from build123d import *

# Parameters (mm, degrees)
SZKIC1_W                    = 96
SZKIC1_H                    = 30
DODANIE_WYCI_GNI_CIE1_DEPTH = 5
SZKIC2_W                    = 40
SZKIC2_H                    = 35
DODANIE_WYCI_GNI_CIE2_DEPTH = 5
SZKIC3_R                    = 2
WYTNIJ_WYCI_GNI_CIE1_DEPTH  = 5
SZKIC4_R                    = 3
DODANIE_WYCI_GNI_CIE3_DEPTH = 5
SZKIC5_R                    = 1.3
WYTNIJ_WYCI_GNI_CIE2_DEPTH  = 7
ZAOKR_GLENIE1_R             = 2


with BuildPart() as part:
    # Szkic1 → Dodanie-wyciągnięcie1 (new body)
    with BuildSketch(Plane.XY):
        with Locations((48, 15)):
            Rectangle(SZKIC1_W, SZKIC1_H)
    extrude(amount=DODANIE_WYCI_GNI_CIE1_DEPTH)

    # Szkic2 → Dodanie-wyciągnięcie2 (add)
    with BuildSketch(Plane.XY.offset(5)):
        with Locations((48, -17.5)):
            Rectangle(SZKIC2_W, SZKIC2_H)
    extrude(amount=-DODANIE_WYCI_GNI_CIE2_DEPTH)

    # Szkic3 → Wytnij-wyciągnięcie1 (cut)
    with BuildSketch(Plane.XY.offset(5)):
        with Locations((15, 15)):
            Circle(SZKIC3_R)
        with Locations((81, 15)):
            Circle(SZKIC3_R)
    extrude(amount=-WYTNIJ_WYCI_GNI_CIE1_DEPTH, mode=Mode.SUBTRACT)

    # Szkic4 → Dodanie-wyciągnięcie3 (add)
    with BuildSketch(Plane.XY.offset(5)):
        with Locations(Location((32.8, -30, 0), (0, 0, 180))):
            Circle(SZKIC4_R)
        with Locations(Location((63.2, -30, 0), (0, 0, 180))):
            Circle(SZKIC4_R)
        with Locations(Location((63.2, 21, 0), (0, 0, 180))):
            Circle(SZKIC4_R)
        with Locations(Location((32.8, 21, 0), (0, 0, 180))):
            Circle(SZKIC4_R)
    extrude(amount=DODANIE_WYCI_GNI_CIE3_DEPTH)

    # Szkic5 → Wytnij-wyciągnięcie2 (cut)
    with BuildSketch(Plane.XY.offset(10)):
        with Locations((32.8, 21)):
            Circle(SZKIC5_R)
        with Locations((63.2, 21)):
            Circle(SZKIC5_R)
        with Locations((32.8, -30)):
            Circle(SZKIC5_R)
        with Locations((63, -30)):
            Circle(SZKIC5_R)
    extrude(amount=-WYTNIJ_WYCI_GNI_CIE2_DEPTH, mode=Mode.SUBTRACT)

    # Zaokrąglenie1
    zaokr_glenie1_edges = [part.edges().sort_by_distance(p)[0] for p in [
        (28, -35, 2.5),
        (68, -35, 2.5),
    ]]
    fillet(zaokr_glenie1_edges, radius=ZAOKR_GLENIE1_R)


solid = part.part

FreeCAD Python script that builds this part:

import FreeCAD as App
import Part
import Sketcher
Q = App.Units.Quantity


def edges_at(feature, points):
    """Names of the edges that pass closest to the given points."""
    edges = feature.Shape.Edges
    near = lambda p: min(range(len(edges)), key=lambda i: edges[i].distToShape(Part.Vertex(*p))[0])
    return sorted({f"Edge{near(p) + 1}" for p in points})


def add_polygon(sketch, points):
    """Adds a closed chain of lines whose ends are joined by coincident constraints."""
    first, n = sketch.GeometryCount, len(points)
    for a, b in zip(points, points[1:] + points[:1]):
        sketch.addGeometry(Part.LineSegment(App.Vector(*a, 0), App.Vector(*b, 0)), False)
    for i in range(n):
        sketch.addConstraint(Sketcher.Constraint("Coincident", first + i, 2, first + (i + 1) % n, 1))

doc = App.newDocument("Part")
params = doc.addObject("Spreadsheet::Sheet", "Params")
for row, (alias, value) in enumerate([
    ("sketch1_width", "96 mm"),
    ("sketch1_height", "30 mm"),
    ("pad1_length", "5 mm"),
    ("sketch2_width", "40 mm"),
    ("sketch2_height", "35 mm"),
    ("pad2_length", "5 mm"),
    ("sketch3_diameter", "4 mm"),
    ("pocket1_length", "5 mm"),
    ("sketch4_diameter", "6 mm"),
    ("pad3_length", "5 mm"),
    ("sketch5_diameter", "2.6 mm"),
    ("pocket2_length", "7 mm"),
    ("fillet_radius", "2 mm"),
], start=1):
    params.set(f"A{row}", alias)
    params.set(f"B{row}", "=" + value)
    params.setAlias(f"B{row}", alias)

body = doc.addObject("PartDesign::Body", "Body")

sketch1 = body.newObject("Sketcher::SketchObject", "Sketch")
sketch1.AttachmentSupport = (doc.getObject("XY_Plane"), [""])
sketch1.MapMode = "FlatFace"
add_polygon(sketch1, [(0, 30), (0, 0), (96, 0), (96, 30)])
sketch1.addConstraint(Sketcher.Constraint("Vertical", 0))
sketch1.addConstraint(Sketcher.Constraint("Horizontal", 1))
sketch1.addConstraint(Sketcher.Constraint("Vertical", 2))
sketch1.addConstraint(Sketcher.Constraint("Horizontal", 3))
sketch1.addConstraint(Sketcher.Constraint("Coincident", 0, 2, -1, 1))
sketch1.addConstraint(Sketcher.Constraint("DistanceX", 1, 1, 1, 2, Q("96 mm")))
sketch1.addConstraint(Sketcher.Constraint("DistanceY", 0, 2, 0, 1, Q("30 mm")))
sketch1.setExpression("Constraints[9]", "Params.sketch1_width")
sketch1.setExpression("Constraints[10]", "Params.sketch1_height")
pad1 = body.newObject("PartDesign::Pad", "Pad")
pad1.Profile = sketch1
pad1.setExpression("Length", "Params.pad1_length")

sketch2 = body.newObject("Sketcher::SketchObject", "Sketch001")
sketch2.AttachmentSupport = (doc.getObject("XY_Plane"), [""])
sketch2.MapMode = "FlatFace"
sketch2.AttachmentOffset = App.Placement(App.Vector(0, 0, 5), App.Rotation())
add_polygon(sketch2, [(28, 0), (28, -35), (68, -35), (68, 0)])
sketch2.addConstraint(Sketcher.Constraint("Vertical", 0))
sketch2.addConstraint(Sketcher.Constraint("Horizontal", 1))
sketch2.addConstraint(Sketcher.Constraint("Vertical", 2))
sketch2.addConstraint(Sketcher.Constraint("Horizontal", 3))
sketch2.addConstraint(Sketcher.Constraint("PointOnObject", 2, 2, -1))
sketch2.addConstraint(Sketcher.Constraint("DistanceX", 1, 1, 1, 2, Q("40 mm")))
sketch2.addConstraint(Sketcher.Constraint("DistanceY", 0, 2, 0, 1, Q("35 mm")))
sketch2.addConstraint(Sketcher.Constraint("DistanceX", -1, 1, 0, 2, Q("28 mm")))
sketch2.setExpression("Constraints[9]", "Params.sketch2_width")
sketch2.setExpression("Constraints[10]", "Params.sketch2_height")
pad2 = body.newObject("PartDesign::Pad", "Pad001")
pad2.Profile = sketch2
pad2.setExpression("Length", "Params.pad2_length")
pad2.Reversed = True

sketch3 = body.newObject("Sketcher::SketchObject", "Sketch002")
sketch3.AttachmentSupport = (doc.getObject("XY_Plane"), [""])
sketch3.MapMode = "FlatFace"
sketch3.AttachmentOffset = App.Placement(App.Vector(0, 0, 5), App.Rotation())
sketch3.addGeometry(Part.Circle(App.Vector(15, 15, 0), App.Vector(0, 0, 1), 2), False)
sketch3.addGeometry(Part.Circle(App.Vector(81, 15, 0), App.Vector(0, 0, 1), 2), False)
sketch3.addConstraint(Sketcher.Constraint("Equal", 0, 1))
sketch3.addConstraint(Sketcher.Constraint("Horizontal", 0, 3, 1, 3))
sketch3.addConstraint(Sketcher.Constraint("Diameter", 0, Q("4 mm")))
sketch3.addConstraint(Sketcher.Constraint("DistanceX", -1, 1, 0, 3, Q("15 mm")))
sketch3.addConstraint(Sketcher.Constraint("DistanceY", -1, 1, 0, 3, Q("15 mm")))
sketch3.addConstraint(Sketcher.Constraint("DistanceX", -1, 1, 1, 3, Q("81 mm")))
sketch3.setExpression("Constraints[2]", "Params.sketch3_diameter")
pocket1 = body.newObject("PartDesign::Pocket", "Pocket")
pocket1.Profile = sketch3
pocket1.setExpression("Length", "Params.pocket1_length")

sketch4 = body.newObject("Sketcher::SketchObject", "Sketch003")
sketch4.AttachmentSupport = (doc.getObject("XY_Plane"), [""])
sketch4.MapMode = "FlatFace"
sketch4.AttachmentOffset = App.Placement(App.Vector(0, 0, 5), App.Rotation())
sketch4.addGeometry(Part.Circle(App.Vector(32.8, -30, 0), App.Vector(0, 0, 1), 3), False)
sketch4.addGeometry(Part.Circle(App.Vector(63.2, -30, 0), App.Vector(0, 0, 1), 3), False)
sketch4.addGeometry(Part.Circle(App.Vector(63.2, 21, 0), App.Vector(0, 0, 1), 3), False)
sketch4.addGeometry(Part.Circle(App.Vector(32.8, 21, 0), App.Vector(0, 0, 1), 3), False)
sketch4.addConstraint(Sketcher.Constraint("Equal", 0, 1))
sketch4.addConstraint(Sketcher.Constraint("Equal", 1, 2))
sketch4.addConstraint(Sketcher.Constraint("Equal", 2, 3))
sketch4.addConstraint(Sketcher.Constraint("Horizontal", 0, 3, 1, 3))
sketch4.addConstraint(Sketcher.Constraint("Horizontal", 2, 3, 3, 3))
sketch4.addConstraint(Sketcher.Constraint("Vertical", 1, 3, 2, 3))
sketch4.addConstraint(Sketcher.Constraint("Vertical", 0, 3, 3, 3))
sketch4.addConstraint(Sketcher.Constraint("Diameter", 0, Q("6 mm")))
sketch4.addConstraint(Sketcher.Constraint("DistanceY", 0, 3, -1, 1, Q("30 mm")))
sketch4.addConstraint(Sketcher.Constraint("DistanceY", -1, 1, 2, 3, Q("21 mm")))
sketch4.addConstraint(Sketcher.Constraint("DistanceX", -1, 1, 0, 3, Q("32.8 mm")))
sketch4.addConstraint(Sketcher.Constraint("DistanceX", -1, 1, 1, 3, Q("63.2 mm")))
sketch4.setExpression("Constraints[7]", "Params.sketch4_diameter")
pad3 = body.newObject("PartDesign::Pad", "Pad002")
pad3.Profile = sketch4
pad3.setExpression("Length", "Params.pad3_length")

sketch5 = body.newObject("Sketcher::SketchObject", "Sketch004")
sketch5.AttachmentSupport = (doc.getObject("XY_Plane"), [""])
sketch5.MapMode = "FlatFace"
sketch5.AttachmentOffset = App.Placement(App.Vector(0, 0, 10), App.Rotation())
sketch5.addGeometry(Part.Circle(App.Vector(32.8, 21, 0), App.Vector(0, 0, 1), 1.3), False)
sketch5.addGeometry(Part.Circle(App.Vector(63.2, 21, 0), App.Vector(0, 0, 1), 1.3), False)
sketch5.addGeometry(Part.Circle(App.Vector(32.8, -30, 0), App.Vector(0, 0, 1), 1.3), False)
sketch5.addGeometry(Part.Circle(App.Vector(63, -30, 0), App.Vector(0, 0, 1), 1.3), False)
sketch5.addConstraint(Sketcher.Constraint("Equal", 0, 1))
sketch5.addConstraint(Sketcher.Constraint("Equal", 1, 2))
sketch5.addConstraint(Sketcher.Constraint("Equal", 2, 3))
sketch5.addConstraint(Sketcher.Constraint("Horizontal", 0, 3, 1, 3))
sketch5.addConstraint(Sketcher.Constraint("Horizontal", 2, 3, 3, 3))
sketch5.addConstraint(Sketcher.Constraint("Vertical", 0, 3, 2, 3))
sketch5.addConstraint(Sketcher.Constraint("Diameter", 0, Q("2.6 mm")))
sketch5.addConstraint(Sketcher.Constraint("DistanceY", -1, 1, 0, 3, Q("21 mm")))
sketch5.addConstraint(Sketcher.Constraint("DistanceY", 2, 3, -1, 1, Q("30 mm")))
sketch5.addConstraint(Sketcher.Constraint("DistanceX", -1, 1, 3, 3, Q("63 mm")))
sketch5.addConstraint(Sketcher.Constraint("DistanceX", -1, 1, 0, 3, Q("32.8 mm")))
sketch5.addConstraint(Sketcher.Constraint("DistanceX", -1, 1, 1, 3, Q("63.2 mm")))
sketch5.setExpression("Constraints[6]", "Params.sketch5_diameter")
pocket2 = body.newObject("PartDesign::Pocket", "Pocket001")
pocket2.Profile = sketch5
pocket2.setExpression("Length", "Params.pocket2_length")
doc.recompute()

fillet = body.newObject("PartDesign::Fillet", "Fillet")
fillet.Base = (pocket2, edges_at(pocket2, [(28, -35, 2.5), (68, -35, 2.5)]))
fillet.setExpression("Radius", "Params.fillet_radius")

doc.recompute()
